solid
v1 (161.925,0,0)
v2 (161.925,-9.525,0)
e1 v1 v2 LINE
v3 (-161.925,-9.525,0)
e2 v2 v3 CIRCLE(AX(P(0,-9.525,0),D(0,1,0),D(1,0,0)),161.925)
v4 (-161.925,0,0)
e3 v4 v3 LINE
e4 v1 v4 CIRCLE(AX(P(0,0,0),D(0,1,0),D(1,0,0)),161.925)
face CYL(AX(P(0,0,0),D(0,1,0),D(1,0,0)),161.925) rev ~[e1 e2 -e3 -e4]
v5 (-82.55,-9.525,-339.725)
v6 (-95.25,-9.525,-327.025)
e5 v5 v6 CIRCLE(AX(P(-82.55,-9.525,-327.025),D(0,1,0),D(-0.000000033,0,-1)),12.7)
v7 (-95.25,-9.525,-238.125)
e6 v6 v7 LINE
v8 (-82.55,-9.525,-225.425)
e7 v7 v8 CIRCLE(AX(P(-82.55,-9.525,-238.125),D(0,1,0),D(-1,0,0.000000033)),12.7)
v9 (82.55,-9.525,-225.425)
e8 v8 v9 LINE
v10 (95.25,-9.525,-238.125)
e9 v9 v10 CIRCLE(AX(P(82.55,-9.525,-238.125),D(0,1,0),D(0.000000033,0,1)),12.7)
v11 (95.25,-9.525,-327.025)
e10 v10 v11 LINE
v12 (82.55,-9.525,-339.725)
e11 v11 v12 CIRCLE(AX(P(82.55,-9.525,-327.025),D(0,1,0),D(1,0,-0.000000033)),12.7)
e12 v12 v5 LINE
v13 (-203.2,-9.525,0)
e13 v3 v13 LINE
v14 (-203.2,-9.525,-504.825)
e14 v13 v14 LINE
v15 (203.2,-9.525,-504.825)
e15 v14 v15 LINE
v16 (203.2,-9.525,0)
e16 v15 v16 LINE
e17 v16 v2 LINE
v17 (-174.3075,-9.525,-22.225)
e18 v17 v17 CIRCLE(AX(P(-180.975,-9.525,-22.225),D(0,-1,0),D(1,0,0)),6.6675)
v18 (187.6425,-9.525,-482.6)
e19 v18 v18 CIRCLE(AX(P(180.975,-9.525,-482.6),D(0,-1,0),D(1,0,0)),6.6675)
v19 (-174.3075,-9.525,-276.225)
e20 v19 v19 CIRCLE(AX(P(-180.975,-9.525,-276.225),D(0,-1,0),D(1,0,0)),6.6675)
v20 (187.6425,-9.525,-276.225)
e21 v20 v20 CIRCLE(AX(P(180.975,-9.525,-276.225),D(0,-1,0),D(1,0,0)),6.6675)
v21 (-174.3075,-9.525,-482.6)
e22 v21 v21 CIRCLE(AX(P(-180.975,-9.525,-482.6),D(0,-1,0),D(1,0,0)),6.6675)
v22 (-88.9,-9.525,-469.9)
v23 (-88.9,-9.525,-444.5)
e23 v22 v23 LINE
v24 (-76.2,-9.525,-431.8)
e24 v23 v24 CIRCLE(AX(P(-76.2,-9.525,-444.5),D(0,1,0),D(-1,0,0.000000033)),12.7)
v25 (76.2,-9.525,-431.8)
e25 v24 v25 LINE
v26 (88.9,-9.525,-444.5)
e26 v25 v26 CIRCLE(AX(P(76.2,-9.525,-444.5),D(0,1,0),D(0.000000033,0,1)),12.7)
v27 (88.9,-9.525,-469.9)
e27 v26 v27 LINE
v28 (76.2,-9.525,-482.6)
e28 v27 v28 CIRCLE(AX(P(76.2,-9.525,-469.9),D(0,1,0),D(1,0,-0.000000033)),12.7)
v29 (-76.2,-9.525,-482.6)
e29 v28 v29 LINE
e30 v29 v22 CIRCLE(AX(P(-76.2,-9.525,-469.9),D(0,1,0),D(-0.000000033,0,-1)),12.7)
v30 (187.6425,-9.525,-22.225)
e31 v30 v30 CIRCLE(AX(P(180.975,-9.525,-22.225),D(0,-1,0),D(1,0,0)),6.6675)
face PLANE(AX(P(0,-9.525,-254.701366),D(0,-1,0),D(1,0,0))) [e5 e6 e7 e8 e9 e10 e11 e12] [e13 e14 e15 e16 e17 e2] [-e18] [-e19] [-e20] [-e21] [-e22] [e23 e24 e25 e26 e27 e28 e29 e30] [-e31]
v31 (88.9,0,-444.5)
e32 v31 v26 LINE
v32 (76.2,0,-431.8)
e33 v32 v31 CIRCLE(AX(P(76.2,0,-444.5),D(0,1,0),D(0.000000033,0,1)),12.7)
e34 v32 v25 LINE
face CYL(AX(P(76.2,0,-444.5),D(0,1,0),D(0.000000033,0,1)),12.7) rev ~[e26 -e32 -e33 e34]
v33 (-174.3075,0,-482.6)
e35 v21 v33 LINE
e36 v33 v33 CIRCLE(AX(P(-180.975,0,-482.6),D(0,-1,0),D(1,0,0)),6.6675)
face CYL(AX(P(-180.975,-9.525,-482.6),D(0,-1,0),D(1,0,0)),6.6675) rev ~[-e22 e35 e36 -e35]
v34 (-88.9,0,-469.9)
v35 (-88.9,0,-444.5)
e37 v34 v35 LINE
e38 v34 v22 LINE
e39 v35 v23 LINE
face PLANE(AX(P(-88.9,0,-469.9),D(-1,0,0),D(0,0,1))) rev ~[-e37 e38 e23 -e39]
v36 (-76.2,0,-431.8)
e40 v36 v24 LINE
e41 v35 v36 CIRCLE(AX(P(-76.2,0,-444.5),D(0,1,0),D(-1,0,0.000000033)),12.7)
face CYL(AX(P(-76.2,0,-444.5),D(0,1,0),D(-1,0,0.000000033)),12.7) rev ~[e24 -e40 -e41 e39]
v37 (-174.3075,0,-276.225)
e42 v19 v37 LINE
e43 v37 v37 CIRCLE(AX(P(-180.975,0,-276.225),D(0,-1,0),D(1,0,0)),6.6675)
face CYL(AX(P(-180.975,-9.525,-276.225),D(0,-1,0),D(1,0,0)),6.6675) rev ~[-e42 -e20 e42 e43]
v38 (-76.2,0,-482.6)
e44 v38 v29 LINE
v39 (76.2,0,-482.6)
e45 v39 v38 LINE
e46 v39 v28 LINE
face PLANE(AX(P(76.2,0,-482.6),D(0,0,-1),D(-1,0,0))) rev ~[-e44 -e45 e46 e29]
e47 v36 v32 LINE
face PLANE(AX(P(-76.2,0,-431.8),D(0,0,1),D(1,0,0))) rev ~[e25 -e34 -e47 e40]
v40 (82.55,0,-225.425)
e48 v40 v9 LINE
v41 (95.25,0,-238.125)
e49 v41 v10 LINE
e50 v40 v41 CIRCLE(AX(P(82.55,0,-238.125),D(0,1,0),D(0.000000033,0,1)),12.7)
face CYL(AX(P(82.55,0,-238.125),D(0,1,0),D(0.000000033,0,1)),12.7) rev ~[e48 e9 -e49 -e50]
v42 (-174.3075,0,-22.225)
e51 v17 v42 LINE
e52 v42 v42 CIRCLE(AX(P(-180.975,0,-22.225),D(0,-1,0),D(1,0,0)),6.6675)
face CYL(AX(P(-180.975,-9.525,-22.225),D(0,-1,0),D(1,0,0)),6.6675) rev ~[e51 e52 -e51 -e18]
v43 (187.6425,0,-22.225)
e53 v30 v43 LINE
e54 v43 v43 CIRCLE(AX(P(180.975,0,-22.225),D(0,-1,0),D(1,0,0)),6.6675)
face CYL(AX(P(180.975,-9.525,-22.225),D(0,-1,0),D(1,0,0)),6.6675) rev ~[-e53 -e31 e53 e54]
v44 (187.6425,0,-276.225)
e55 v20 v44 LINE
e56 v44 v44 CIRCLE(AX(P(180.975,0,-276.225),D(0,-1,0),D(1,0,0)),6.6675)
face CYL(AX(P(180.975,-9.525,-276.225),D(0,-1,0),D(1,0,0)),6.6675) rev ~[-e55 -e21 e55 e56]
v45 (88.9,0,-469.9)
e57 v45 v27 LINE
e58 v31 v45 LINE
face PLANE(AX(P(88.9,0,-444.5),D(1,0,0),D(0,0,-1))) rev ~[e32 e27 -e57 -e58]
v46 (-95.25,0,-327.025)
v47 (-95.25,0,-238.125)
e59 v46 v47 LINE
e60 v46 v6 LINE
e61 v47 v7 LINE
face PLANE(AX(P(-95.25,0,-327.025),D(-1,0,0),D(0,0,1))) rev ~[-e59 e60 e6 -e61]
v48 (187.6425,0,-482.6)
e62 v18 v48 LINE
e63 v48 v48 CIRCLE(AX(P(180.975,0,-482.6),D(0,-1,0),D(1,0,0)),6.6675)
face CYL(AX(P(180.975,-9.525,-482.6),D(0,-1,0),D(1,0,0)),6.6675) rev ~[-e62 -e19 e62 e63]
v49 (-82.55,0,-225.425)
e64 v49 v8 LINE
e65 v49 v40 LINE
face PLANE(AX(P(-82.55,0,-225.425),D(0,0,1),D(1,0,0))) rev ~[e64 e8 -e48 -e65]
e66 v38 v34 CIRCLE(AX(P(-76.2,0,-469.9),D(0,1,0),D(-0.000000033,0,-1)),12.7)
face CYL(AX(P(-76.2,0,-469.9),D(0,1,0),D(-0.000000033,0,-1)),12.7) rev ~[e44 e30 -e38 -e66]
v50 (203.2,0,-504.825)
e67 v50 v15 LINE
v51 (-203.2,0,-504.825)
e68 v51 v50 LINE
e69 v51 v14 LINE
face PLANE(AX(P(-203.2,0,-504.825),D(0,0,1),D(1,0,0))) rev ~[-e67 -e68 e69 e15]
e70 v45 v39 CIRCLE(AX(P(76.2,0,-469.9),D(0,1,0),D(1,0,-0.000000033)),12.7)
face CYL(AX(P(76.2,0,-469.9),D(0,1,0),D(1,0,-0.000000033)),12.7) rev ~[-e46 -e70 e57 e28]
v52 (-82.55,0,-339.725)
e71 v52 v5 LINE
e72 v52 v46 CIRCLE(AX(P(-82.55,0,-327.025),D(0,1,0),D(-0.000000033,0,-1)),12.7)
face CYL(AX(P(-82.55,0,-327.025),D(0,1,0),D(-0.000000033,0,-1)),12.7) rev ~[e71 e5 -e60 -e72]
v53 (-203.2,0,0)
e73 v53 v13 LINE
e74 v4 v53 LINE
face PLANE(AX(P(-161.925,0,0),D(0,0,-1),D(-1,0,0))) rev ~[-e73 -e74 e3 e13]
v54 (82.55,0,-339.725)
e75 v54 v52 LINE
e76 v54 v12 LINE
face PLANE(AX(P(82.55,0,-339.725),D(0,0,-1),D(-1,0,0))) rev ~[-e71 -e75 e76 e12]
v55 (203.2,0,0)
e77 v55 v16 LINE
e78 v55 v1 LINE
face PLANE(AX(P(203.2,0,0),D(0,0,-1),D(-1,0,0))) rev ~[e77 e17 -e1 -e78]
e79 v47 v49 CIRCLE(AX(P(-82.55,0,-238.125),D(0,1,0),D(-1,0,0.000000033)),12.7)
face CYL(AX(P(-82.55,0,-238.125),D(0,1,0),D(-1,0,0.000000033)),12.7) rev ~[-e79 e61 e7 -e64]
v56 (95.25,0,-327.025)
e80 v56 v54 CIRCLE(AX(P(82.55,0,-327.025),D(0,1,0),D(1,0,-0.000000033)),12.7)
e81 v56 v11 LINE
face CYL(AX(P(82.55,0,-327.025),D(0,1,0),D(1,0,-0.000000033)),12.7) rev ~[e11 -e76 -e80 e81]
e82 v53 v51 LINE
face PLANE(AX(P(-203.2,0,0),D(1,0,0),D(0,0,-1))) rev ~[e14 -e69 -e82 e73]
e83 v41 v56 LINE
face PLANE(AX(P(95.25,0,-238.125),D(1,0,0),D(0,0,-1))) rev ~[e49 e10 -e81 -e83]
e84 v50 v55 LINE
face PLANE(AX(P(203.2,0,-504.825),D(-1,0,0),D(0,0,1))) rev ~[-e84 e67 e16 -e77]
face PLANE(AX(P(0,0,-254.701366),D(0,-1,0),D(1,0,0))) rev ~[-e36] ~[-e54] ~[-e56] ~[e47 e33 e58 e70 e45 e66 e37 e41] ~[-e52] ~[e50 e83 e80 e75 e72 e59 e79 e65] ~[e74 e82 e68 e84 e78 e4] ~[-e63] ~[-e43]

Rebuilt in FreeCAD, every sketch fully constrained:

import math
import FreeCAD as App
import Part
import Sketcher

V = App.Vector
Q = App.Units.Quantity

doc = App.newDocument("Part")
body = doc.addObject("PartDesign::Body", "Body")

sketch1 = body.newObject("Sketcher::SketchObject", "Sketch")
sketch1.AttachmentSupport = (doc.getObject("XZ_Plane"), [""])
sketch1.MapMode = "FlatFace"
sketch1.addGeometry([
    Part.ArcOfCircle(Part.Circle(V(0, 0, 0), V(0, 0, 1), 162), math.radians(180), math.radians(360)),
    Part.LineSegment(V(-162, 0, 0), V(-203, 0, 0)),
    Part.LineSegment(V(-203, 0, 0), V(-203, -505, 0)),
    Part.LineSegment(V(-203, -505, 0), V(203, -505, 0)),
    Part.LineSegment(V(203, -505, 0), V(203, 0, 0)),
    Part.LineSegment(V(203, 0, 0), V(162, 0, 0)),
    Part.ArcOfCircle(Part.Circle(V(-76, -470, 0), V(0, 0, 1), 13), math.radians(-180), math.radians(-90)),
    Part.LineSegment(V(-89, -470, 0), V(-89, -444, 0)),
    Part.ArcOfCircle(Part.Circle(V(-76, -445, 0), V(0, 0, 1), 13), math.radians(90), math.radians(180)),
    Part.LineSegment(V(-76, -432, 0), V(76, -432, 0)),
    Part.ArcOfCircle(Part.Circle(V(76, -445, 0), V(0, 0, 1), 13), math.radians(0), math.radians(90)),
    Part.LineSegment(V(89, -444, 0), V(89, -470, 0)),
    Part.ArcOfCircle(Part.Circle(V(76, -470, 0), V(0, 0, 1), 13), math.radians(-90), math.radians(0)),
    Part.LineSegment(V(76, -483, 0), V(-76, -483, 0)),
    Part.ArcOfCircle(Part.Circle(V(-83, -327, 0), V(0, 0, 1), 13), math.radians(-180), math.radians(-90)),
    Part.LineSegment(V(-95, -327, 0), V(-95, -238, 0)),
    Part.ArcOfCircle(Part.Circle(V(-83, -238, 0), V(0, 0, 1), 13), math.radians(90), math.radians(180)),
    Part.LineSegment(V(-83, -225, 0), V(83, -225, 0)),
    Part.ArcOfCircle(Part.Circle(V(83, -238, 0), V(0, 0, 1), 13), math.radians(0), math.radians(90)),
    Part.LineSegment(V(95, -238, 0), V(95, -327, 0)),
    Part.ArcOfCircle(Part.Circle(V(83, -327, 0), V(0, 0, 1), 13), math.radians(-90), math.radians(0)),
    Part.LineSegment(V(83, -340, 0), V(-83, -340, 0)),
], False)
sketch1.addConstraint([
    Sketcher.Constraint("Coincident", 0, 1, 1, 1),
    Sketcher.Constraint("Coincident", 1, 2, 2, 1),
    Sketcher.Constraint("Coincident", 2, 2, 3, 1),
    Sketcher.Constraint("Coincident", 3, 2, 4, 1),
    Sketcher.Constraint("Coincident", 4, 2, 5, 1),
    Sketcher.Constraint("Coincident", 5, 2, 0, 2),
    Sketcher.Constraint("Tangent", 6, 1, 7, 1),
    Sketcher.Constraint("Tangent", 7, 2, 8, 2),
    Sketcher.Constraint("Tangent", 8, 1, 9, 1),
    Sketcher.Constraint("Tangent", 9, 2, 10, 2),
    Sketcher.Constraint("Tangent", 10, 1, 11, 1),
    Sketcher.Constraint("Tangent", 11, 2, 12, 2),
    Sketcher.Constraint("Tangent", 12, 1, 13, 1),
    Sketcher.Constraint("Tangent", 13, 2, 6, 2),
    Sketcher.Constraint("Tangent", 14, 1, 15, 1),
    Sketcher.Constraint("Tangent", 15, 2, 16, 2),
    Sketcher.Constraint("Tangent", 16, 1, 17, 1),
    Sketcher.Constraint("Tangent", 17, 2, 18, 2),
    Sketcher.Constraint("Tangent", 18, 1, 19, 1),
    Sketcher.Constraint("Tangent", 19, 2, 20, 2),
    Sketcher.Constraint("Tangent", 20, 1, 21, 1),
    Sketcher.Constraint("Tangent", 21, 2, 14, 2),
    Sketcher.Constraint("Horizontal", 1),
    Sketcher.Constraint("Vertical", 2),
    Sketcher.Constraint("Horizontal", 3),
    Sketcher.Constraint("Vertical", 4),
    Sketcher.Constraint("Horizontal", 5),
    Sketcher.Constraint("Vertical", 7),
    Sketcher.Constraint("Horizontal", 9),
    Sketcher.Constraint("Vertical", 11),
    Sketcher.Constraint("Horizontal", 13),
    Sketcher.Constraint("Vertical", 15),
    Sketcher.Constraint("Horizontal", 17),
    Sketcher.Constraint("Vertical", 19),
    Sketcher.Constraint("Horizontal", 21),
    Sketcher.Constraint("Coincident", 0, 3, -1, 1),
    Sketcher.Constraint("Equal", 6, 8),
    Sketcher.Constraint("Equal", 8, 10),
    Sketcher.Constraint("Equal", 10, 12),
    Sketcher.Constraint("Equal", 12, 14),
    Sketcher.Constraint("Equal", 14, 16),
    Sketcher.Constraint("Equal", 16, 18),
    Sketcher.Constraint("Equal", 18, 20),
    Sketcher.Constraint("Symmetric", 1, 2, 4, 2, -1, 1),
    Sketcher.Constraint("PointOnObject", 0, 1, -1),
    Sketcher.Constraint("Radius", 6, Q("0.5 in")),
    Sketcher.Constraint("DistanceX", 3, 1, 3, 2, Q("16 in")),
    Sketcher.Constraint("DistanceX", 9, 1, 9, 2, Q("6 in")),
    Sketcher.Constraint("DistanceY", 7, 1, 7, 2, Q("1 in")),
    Sketcher.Constraint("DistanceX", 17, 1, 17, 2, Q("6.5 in")),
    Sketcher.Constraint("DistanceY", 15, 1, 15, 2, Q("3.5 in")),
    Sketcher.Constraint("DistanceX", 6, 3, -1, 1, Q("3 in")),
    Sketcher.Constraint("DistanceY", 8, 1, -1, 1, Q("17 in")),
    Sketcher.Constraint("Radius", 0, Q("6.375 in")),
    Sketcher.Constraint("DistanceY", 2, 2, 14, 3, Q("7 in")),
    Sketcher.Constraint("DistanceY", 2, 2, 2, 1, Q("19.875 in")),
    Sketcher.Constraint("DistanceX", 14, 3, -1, 1, Q("3.25 in")),
])
pad1 = body.newObject("PartDesign::Pad", "Pad")
pad1.Profile = sketch1
pad1.Length = Q("0.375 in")

sketch2 = body.newObject("Sketcher::SketchObject", "Sketch001")
sketch2.AttachmentSupport = (doc.getObject("XZ_Plane"), [""])
sketch2.MapMode = "FlatFace"
sketch2.AttachmentOffset = App.Placement(V(0, 0, 0.375 * 25.4), App.Rotation())
sketch2.addGeometry([
    Part.Circle(V(-181, -483, 0), V(0, 0, 1), 7),
    Part.Circle(V(181, -483, 0), V(0, 0, 1), 7),
    Part.Circle(V(-181, -22, 0), V(0, 0, 1), 7),
    Part.Circle(V(181, -22, 0), V(0, 0, 1), 7),
    Part.Circle(V(181, -276, 0), V(0, 0, 1), 7),
    Part.Circle(V(-181, -276, 0), V(0, 0, 1), 7),
], False)
sketch2.addConstraint([
    Sketcher.Constraint("Equal", 0, 1),
    Sketcher.Constraint("Equal", 1, 2),
    Sketcher.Constraint("Equal", 2, 3),
    Sketcher.Constraint("Equal", 3, 4),
    Sketcher.Constraint("Equal", 4, 5),
    Sketcher.Constraint("Symmetric", 0, 3, 1, 3, -2),
    Sketcher.Constraint("Symmetric", 2, 3, 3, 3, -2),
    Sketcher.Constraint("Symmetric", 4, 3, 5, 3, -2),
    Sketcher.Constraint("Vertical", 0, 3, 2, 3),
    Sketcher.Constraint("Vertical", 3, 3, 4, 3),
    Sketcher.Constraint("Diameter", 0, Q("0.525 in")),
    Sketcher.Constraint("DistanceY", 0, 3, -1, 1, Q("19 in")),
    Sketcher.Constraint("DistanceY", 4, 3, 3, 3, Q("10 in")),
    Sketcher.Constraint("DistanceX", 0, 3, 1, 3, Q("14.25 in")),
    Sketcher.Constraint("DistanceY", 2, 3, -1, 1, Q("0.875 in")),
])
pocket1 = body.newObject("PartDesign::Pocket", "Pocket")
pocket1.Profile = sketch2
pocket1.Type = "ThroughAll"

doc.recompute()
